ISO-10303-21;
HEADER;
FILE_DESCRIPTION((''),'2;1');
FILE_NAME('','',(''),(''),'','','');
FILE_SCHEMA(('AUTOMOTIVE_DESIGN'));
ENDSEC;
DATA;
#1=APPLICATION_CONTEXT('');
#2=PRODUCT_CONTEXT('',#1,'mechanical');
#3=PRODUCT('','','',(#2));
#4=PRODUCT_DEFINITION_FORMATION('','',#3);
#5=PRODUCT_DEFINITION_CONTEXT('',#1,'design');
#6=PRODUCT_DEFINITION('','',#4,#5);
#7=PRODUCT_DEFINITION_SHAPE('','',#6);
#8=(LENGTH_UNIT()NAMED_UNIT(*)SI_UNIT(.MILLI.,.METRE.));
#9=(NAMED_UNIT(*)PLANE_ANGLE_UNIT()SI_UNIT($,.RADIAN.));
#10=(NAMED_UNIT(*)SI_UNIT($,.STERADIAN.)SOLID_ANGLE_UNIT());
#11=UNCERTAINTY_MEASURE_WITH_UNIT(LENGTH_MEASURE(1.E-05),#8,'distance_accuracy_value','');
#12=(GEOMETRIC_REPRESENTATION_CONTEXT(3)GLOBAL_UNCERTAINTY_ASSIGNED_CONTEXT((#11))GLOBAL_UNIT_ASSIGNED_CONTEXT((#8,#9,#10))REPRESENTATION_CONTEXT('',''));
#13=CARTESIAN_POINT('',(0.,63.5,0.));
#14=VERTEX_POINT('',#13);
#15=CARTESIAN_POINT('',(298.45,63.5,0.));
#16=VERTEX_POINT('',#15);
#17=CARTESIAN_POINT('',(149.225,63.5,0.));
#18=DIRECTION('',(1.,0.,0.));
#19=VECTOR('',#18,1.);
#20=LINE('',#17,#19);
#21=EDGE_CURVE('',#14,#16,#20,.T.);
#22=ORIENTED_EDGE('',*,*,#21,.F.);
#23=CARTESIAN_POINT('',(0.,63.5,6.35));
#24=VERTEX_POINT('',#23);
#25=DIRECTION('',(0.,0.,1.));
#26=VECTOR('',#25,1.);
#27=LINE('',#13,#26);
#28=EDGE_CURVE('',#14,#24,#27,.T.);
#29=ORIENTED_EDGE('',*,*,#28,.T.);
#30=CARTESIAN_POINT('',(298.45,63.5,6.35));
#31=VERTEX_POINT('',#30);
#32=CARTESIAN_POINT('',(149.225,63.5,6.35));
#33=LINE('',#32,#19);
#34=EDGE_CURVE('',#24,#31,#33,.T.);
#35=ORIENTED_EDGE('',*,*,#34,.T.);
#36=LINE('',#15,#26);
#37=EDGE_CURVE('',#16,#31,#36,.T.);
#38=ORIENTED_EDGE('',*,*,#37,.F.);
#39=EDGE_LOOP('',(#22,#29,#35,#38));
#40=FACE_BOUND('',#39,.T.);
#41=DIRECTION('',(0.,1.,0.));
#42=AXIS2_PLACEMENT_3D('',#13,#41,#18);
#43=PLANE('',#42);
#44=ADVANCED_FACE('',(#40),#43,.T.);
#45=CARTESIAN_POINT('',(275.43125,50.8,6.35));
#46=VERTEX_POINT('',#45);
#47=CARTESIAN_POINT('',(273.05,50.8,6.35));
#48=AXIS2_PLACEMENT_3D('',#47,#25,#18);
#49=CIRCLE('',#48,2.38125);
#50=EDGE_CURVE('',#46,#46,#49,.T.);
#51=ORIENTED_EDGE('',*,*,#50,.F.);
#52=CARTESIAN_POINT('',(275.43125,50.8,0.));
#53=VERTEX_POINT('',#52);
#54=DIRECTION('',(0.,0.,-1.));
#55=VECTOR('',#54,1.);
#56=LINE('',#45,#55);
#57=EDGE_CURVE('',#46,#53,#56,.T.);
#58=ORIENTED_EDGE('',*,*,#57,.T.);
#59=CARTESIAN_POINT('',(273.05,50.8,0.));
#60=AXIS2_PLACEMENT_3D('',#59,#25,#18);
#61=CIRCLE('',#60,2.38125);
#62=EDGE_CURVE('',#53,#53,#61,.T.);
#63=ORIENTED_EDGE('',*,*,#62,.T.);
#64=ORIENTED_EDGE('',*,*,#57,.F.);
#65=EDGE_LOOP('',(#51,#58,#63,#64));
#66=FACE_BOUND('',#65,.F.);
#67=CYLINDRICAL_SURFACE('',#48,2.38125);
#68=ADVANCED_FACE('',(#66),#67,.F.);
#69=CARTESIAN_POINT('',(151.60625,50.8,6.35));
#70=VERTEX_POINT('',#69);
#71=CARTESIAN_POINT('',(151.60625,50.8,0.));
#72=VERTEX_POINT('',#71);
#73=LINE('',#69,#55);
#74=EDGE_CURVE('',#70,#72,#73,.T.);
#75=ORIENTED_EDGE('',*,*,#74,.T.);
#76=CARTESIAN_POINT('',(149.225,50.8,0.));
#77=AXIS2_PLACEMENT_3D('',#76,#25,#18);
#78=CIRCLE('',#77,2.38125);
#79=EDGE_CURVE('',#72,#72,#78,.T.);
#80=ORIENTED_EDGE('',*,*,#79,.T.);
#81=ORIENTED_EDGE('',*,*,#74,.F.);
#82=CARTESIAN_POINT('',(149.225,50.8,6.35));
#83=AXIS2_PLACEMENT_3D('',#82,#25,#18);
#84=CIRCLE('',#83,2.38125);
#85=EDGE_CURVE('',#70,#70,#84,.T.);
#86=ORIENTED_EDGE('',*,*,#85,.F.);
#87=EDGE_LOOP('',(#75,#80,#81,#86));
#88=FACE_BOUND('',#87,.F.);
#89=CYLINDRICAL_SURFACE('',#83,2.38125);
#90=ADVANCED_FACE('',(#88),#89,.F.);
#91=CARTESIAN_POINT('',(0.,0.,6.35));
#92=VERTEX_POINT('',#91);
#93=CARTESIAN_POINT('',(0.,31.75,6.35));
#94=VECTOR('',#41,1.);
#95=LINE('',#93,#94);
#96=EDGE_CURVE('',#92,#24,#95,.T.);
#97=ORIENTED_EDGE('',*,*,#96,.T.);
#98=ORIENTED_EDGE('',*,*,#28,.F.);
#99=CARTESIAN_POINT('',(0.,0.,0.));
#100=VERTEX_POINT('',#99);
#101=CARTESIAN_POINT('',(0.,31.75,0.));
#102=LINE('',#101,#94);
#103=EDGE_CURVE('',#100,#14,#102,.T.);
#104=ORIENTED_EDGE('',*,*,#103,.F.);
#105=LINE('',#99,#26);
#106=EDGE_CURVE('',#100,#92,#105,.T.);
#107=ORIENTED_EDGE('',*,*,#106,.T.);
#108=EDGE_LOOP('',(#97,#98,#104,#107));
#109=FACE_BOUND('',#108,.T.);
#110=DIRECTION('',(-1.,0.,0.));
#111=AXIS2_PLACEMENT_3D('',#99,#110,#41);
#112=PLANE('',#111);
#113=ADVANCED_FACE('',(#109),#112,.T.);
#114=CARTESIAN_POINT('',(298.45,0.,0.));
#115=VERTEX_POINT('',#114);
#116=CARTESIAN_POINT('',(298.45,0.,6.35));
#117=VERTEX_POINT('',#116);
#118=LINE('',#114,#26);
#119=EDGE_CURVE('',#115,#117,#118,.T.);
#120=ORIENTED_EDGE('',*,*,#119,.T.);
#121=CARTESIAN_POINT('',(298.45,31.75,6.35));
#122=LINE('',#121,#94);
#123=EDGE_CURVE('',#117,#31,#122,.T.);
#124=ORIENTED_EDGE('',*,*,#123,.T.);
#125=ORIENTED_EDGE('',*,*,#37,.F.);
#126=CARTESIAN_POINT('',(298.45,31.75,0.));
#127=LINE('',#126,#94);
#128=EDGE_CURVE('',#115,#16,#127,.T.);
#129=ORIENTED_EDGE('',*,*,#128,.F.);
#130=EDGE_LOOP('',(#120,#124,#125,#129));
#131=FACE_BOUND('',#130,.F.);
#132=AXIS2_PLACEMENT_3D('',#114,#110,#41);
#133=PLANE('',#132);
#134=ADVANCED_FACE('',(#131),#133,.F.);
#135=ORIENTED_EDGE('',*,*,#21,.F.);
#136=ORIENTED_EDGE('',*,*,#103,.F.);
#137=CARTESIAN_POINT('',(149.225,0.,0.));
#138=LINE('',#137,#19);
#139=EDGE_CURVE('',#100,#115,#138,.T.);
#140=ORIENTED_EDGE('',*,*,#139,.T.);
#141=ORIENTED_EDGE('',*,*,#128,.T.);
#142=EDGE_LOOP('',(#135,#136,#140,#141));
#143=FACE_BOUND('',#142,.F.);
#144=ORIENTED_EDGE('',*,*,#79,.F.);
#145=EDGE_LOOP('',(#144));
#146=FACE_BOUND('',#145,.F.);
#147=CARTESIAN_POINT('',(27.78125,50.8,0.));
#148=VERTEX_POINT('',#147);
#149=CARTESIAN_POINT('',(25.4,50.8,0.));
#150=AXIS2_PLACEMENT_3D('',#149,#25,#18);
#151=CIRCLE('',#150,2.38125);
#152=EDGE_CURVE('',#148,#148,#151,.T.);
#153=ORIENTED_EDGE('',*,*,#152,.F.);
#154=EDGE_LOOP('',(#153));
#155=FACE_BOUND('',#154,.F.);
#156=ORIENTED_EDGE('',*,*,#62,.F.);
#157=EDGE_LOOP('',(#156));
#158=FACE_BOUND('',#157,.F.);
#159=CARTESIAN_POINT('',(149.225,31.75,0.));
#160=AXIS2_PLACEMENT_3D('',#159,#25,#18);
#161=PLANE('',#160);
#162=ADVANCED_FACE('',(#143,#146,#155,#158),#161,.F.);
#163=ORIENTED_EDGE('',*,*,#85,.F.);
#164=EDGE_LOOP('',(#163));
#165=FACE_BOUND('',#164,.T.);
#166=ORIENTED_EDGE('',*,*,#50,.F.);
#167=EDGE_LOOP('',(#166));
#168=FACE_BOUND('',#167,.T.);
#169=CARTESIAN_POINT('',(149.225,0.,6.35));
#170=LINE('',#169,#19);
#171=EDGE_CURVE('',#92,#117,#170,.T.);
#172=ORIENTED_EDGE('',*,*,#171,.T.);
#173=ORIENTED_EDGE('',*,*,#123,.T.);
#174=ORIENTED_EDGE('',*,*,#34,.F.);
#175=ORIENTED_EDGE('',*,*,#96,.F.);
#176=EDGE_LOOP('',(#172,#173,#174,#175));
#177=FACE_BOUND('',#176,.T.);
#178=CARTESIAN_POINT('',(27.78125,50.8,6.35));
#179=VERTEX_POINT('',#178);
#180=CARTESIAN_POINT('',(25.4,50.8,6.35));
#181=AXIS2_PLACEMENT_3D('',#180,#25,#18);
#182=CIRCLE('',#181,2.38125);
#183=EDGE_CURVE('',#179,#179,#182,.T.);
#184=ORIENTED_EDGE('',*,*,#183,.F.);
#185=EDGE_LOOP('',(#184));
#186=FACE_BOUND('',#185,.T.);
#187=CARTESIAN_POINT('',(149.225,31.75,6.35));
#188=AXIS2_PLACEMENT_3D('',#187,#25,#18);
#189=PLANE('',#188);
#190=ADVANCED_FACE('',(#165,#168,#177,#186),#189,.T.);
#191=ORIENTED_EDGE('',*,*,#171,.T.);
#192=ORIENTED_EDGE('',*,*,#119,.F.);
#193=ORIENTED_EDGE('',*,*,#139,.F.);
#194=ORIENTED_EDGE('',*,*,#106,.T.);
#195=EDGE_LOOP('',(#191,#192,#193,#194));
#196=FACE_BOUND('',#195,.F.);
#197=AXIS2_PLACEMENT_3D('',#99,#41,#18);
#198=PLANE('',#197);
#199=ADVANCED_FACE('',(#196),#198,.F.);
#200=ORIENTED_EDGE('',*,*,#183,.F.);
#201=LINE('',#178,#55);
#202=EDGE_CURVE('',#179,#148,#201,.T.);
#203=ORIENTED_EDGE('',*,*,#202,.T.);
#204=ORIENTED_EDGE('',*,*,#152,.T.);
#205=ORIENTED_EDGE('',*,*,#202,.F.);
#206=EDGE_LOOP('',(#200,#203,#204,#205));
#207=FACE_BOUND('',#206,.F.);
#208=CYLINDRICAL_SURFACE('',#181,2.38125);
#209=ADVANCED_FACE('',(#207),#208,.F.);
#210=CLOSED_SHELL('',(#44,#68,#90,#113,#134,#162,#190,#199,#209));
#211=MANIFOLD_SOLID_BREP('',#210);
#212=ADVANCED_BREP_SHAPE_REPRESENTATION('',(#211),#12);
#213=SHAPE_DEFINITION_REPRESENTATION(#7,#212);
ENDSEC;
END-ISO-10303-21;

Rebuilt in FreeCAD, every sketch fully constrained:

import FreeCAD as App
import Part
import Sketcher
from FreeCAD import Vector
Q = App.Units.Quantity

doc = App.newDocument("Part")
body = doc.addObject("PartDesign::Body", "Body")

# Sketch on XY plane
sketch1 = body.newObject("Sketcher::SketchObject", "Sketch")
sketch1.AttachmentSupport = (doc.getObject("XY_Plane"), [""])
sketch1.MapMode = "FlatFace"
sketch1.addGeometry([
    Part.LineSegment(Vector(0, 64, 0), Vector(0, 0, 0)),
    Part.LineSegment(Vector(0, 0, 0), Vector(298, 0, 0)),
    Part.LineSegment(Vector(298, 0, 0), Vector(298, 64, 0)),
    Part.LineSegment(Vector(298, 64, 0), Vector(0, 64, 0)),
], False)
sketch1.addConstraint([
    Sketcher.Constraint("Coincident", 0, 2, 1, 1),
    Sketcher.Constraint("Coincident", 1, 2, 2, 1),
    Sketcher.Constraint("Coincident", 2, 2, 3, 1),
    Sketcher.Constraint("Coincident", 3, 2, 0, 1),
    Sketcher.Constraint("Vertical", 0),
    Sketcher.Constraint("Horizontal", 1),
    Sketcher.Constraint("Vertical", 2),
    Sketcher.Constraint("Horizontal", 3),
    Sketcher.Constraint("Coincident", 0, 2, -1, 1),
    Sketcher.Constraint("DistanceY", 0, 2, 0, 1, Q("2.5 in")),
    Sketcher.Constraint("DistanceX", 1, 1, 1, 2, Q("11.75 in")),
])
pad1 = body.newObject("PartDesign::Pad", "Pad")
pad1.Profile = sketch1
pad1.Length = Q("0.25 in")

# Sketch on XY plane
sketch2 = body.newObject("Sketcher::SketchObject", "Sketch001")
sketch2.AttachmentSupport = (doc.getObject("XY_Plane"), [""])
sketch2.MapMode = "FlatFace"
sketch2.AttachmentOffset = App.Placement(Vector(0, 0, 0.25 * 25.4), App.Rotation())
sketch2.addGeometry([
    Part.Circle(Vector(25.4, 50.8, 0), Vector(0, 0, 1), 2.4),
    Part.Circle(Vector(149.2, 50.8, 0), Vector(0, 0, 1), 2.4),
    Part.Circle(Vector(273.1, 50.8, 0), Vector(0, 0, 1), 2.4),
], False)
sketch2.addConstraint([
    Sketcher.Constraint("Equal", 0, 1),
    Sketcher.Constraint("Equal", 1, 2),
    Sketcher.Constraint("Horizontal", 0, 3, 1, 3),
    Sketcher.Constraint("Horizontal", 1, 3, 2, 3),
    Sketcher.Constraint("Diameter", 0, Q("0.1875 in")),
    Sketcher.Constraint("DistanceX", -1, 1, 0, 3, Q("1 in")),
    Sketcher.Constraint("DistanceY", -1, 1, 0, 3, Q("2 in")),
    Sketcher.Constraint("DistanceX", -1, 1, 2, 3, Q("10.75 in")),
    Sketcher.Constraint("DistanceX", -1, 1, 1, 3, Q("5.875 in")),
])
pocket1 = body.newObject("PartDesign::Pocket", "Pocket")
pocket1.Profile = sketch2
pocket1.Type = "ThroughAll"

doc.recompute()
